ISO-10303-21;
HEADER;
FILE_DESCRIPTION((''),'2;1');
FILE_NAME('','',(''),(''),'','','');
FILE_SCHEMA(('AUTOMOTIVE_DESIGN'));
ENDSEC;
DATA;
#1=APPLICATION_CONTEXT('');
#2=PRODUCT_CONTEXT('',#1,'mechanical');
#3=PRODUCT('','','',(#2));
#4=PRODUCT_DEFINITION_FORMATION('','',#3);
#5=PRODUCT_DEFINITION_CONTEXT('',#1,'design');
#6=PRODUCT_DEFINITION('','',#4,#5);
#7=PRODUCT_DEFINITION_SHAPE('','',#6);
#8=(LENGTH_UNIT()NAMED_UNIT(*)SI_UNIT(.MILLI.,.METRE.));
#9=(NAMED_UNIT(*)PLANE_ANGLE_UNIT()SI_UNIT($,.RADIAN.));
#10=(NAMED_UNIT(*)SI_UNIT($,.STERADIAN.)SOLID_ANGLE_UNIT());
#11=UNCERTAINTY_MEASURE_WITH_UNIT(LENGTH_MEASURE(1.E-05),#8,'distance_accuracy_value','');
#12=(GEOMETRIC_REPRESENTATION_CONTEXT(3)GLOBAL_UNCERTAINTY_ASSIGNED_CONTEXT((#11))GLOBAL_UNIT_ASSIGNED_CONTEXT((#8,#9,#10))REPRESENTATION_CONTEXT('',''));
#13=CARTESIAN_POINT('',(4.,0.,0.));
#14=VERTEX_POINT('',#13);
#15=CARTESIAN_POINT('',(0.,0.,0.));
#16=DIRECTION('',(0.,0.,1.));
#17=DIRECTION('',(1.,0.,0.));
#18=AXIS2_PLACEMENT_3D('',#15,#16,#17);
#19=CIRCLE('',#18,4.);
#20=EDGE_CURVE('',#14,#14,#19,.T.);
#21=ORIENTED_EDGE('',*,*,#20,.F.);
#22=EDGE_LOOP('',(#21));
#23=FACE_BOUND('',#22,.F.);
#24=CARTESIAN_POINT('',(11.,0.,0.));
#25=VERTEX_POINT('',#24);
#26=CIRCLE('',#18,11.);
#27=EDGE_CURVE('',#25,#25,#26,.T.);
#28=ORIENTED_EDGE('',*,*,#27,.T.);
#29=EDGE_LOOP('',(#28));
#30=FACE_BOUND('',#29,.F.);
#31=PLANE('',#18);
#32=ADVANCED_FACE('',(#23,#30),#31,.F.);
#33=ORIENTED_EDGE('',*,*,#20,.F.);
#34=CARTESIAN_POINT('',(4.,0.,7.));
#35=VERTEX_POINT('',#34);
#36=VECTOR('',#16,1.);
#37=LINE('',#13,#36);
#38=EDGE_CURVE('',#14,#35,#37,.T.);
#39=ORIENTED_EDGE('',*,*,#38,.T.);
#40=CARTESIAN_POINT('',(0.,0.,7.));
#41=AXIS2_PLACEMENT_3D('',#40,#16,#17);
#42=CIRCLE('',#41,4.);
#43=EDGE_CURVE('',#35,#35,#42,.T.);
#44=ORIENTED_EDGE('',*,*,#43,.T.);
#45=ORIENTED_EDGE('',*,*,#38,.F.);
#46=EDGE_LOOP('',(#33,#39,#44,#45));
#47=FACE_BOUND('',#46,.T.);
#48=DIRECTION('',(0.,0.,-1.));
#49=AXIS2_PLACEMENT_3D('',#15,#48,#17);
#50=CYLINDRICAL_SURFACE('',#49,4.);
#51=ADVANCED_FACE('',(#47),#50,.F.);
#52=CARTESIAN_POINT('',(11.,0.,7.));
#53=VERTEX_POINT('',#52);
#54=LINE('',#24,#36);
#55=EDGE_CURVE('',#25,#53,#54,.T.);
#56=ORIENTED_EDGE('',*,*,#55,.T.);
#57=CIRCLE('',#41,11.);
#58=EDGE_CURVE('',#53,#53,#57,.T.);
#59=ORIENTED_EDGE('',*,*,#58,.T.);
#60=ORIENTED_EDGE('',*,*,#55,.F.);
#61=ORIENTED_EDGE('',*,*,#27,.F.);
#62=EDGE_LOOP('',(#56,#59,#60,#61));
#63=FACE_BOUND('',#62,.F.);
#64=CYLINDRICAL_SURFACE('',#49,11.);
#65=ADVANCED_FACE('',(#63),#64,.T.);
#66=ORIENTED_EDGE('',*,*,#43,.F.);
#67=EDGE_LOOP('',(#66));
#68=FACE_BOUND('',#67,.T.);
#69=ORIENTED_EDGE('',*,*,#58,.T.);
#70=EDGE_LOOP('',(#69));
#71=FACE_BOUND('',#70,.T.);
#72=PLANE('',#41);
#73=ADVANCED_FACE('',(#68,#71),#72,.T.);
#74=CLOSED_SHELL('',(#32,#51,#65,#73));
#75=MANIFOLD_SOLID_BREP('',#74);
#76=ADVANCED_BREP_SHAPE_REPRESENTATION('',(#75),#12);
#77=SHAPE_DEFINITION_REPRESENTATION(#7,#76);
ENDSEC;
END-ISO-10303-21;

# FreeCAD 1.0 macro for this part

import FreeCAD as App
import Part
import Sketcher
from FreeCAD import Vector

doc = App.newDocument("Part")
body = doc.addObject("PartDesign::Body", "Body")

sketch1 = body.newObject("Sketcher::SketchObject", "Sketch")
sketch1.AttachmentSupport = (doc.getObject("XY_Plane"), [""])
sketch1.MapMode = "FlatFace"
sketch1.addGeometry(Part.Circle(Vector(0, 0, 0), Vector(0, 0, 1), 11), False)
sketch1.addGeometry(Part.Circle(Vector(0, 0, 0), Vector(0, 0, 1), 4), False)
sketch1.addConstraint(Sketcher.Constraint("Coincident", 0, 3, -1, 1))
sketch1.addConstraint(Sketcher.Constraint("Coincident", 1, 3, -1, 1))
sketch1.addConstraint(Sketcher.Constraint("Diameter", 0, 22.0))
sketch1.addConstraint(Sketcher.Constraint("Diameter", 1, 8.0))
pad1 = body.newObject("PartDesign::Pad", "Pad")
pad1.Profile = sketch1
pad1.Length = 7

doc.recompute()
